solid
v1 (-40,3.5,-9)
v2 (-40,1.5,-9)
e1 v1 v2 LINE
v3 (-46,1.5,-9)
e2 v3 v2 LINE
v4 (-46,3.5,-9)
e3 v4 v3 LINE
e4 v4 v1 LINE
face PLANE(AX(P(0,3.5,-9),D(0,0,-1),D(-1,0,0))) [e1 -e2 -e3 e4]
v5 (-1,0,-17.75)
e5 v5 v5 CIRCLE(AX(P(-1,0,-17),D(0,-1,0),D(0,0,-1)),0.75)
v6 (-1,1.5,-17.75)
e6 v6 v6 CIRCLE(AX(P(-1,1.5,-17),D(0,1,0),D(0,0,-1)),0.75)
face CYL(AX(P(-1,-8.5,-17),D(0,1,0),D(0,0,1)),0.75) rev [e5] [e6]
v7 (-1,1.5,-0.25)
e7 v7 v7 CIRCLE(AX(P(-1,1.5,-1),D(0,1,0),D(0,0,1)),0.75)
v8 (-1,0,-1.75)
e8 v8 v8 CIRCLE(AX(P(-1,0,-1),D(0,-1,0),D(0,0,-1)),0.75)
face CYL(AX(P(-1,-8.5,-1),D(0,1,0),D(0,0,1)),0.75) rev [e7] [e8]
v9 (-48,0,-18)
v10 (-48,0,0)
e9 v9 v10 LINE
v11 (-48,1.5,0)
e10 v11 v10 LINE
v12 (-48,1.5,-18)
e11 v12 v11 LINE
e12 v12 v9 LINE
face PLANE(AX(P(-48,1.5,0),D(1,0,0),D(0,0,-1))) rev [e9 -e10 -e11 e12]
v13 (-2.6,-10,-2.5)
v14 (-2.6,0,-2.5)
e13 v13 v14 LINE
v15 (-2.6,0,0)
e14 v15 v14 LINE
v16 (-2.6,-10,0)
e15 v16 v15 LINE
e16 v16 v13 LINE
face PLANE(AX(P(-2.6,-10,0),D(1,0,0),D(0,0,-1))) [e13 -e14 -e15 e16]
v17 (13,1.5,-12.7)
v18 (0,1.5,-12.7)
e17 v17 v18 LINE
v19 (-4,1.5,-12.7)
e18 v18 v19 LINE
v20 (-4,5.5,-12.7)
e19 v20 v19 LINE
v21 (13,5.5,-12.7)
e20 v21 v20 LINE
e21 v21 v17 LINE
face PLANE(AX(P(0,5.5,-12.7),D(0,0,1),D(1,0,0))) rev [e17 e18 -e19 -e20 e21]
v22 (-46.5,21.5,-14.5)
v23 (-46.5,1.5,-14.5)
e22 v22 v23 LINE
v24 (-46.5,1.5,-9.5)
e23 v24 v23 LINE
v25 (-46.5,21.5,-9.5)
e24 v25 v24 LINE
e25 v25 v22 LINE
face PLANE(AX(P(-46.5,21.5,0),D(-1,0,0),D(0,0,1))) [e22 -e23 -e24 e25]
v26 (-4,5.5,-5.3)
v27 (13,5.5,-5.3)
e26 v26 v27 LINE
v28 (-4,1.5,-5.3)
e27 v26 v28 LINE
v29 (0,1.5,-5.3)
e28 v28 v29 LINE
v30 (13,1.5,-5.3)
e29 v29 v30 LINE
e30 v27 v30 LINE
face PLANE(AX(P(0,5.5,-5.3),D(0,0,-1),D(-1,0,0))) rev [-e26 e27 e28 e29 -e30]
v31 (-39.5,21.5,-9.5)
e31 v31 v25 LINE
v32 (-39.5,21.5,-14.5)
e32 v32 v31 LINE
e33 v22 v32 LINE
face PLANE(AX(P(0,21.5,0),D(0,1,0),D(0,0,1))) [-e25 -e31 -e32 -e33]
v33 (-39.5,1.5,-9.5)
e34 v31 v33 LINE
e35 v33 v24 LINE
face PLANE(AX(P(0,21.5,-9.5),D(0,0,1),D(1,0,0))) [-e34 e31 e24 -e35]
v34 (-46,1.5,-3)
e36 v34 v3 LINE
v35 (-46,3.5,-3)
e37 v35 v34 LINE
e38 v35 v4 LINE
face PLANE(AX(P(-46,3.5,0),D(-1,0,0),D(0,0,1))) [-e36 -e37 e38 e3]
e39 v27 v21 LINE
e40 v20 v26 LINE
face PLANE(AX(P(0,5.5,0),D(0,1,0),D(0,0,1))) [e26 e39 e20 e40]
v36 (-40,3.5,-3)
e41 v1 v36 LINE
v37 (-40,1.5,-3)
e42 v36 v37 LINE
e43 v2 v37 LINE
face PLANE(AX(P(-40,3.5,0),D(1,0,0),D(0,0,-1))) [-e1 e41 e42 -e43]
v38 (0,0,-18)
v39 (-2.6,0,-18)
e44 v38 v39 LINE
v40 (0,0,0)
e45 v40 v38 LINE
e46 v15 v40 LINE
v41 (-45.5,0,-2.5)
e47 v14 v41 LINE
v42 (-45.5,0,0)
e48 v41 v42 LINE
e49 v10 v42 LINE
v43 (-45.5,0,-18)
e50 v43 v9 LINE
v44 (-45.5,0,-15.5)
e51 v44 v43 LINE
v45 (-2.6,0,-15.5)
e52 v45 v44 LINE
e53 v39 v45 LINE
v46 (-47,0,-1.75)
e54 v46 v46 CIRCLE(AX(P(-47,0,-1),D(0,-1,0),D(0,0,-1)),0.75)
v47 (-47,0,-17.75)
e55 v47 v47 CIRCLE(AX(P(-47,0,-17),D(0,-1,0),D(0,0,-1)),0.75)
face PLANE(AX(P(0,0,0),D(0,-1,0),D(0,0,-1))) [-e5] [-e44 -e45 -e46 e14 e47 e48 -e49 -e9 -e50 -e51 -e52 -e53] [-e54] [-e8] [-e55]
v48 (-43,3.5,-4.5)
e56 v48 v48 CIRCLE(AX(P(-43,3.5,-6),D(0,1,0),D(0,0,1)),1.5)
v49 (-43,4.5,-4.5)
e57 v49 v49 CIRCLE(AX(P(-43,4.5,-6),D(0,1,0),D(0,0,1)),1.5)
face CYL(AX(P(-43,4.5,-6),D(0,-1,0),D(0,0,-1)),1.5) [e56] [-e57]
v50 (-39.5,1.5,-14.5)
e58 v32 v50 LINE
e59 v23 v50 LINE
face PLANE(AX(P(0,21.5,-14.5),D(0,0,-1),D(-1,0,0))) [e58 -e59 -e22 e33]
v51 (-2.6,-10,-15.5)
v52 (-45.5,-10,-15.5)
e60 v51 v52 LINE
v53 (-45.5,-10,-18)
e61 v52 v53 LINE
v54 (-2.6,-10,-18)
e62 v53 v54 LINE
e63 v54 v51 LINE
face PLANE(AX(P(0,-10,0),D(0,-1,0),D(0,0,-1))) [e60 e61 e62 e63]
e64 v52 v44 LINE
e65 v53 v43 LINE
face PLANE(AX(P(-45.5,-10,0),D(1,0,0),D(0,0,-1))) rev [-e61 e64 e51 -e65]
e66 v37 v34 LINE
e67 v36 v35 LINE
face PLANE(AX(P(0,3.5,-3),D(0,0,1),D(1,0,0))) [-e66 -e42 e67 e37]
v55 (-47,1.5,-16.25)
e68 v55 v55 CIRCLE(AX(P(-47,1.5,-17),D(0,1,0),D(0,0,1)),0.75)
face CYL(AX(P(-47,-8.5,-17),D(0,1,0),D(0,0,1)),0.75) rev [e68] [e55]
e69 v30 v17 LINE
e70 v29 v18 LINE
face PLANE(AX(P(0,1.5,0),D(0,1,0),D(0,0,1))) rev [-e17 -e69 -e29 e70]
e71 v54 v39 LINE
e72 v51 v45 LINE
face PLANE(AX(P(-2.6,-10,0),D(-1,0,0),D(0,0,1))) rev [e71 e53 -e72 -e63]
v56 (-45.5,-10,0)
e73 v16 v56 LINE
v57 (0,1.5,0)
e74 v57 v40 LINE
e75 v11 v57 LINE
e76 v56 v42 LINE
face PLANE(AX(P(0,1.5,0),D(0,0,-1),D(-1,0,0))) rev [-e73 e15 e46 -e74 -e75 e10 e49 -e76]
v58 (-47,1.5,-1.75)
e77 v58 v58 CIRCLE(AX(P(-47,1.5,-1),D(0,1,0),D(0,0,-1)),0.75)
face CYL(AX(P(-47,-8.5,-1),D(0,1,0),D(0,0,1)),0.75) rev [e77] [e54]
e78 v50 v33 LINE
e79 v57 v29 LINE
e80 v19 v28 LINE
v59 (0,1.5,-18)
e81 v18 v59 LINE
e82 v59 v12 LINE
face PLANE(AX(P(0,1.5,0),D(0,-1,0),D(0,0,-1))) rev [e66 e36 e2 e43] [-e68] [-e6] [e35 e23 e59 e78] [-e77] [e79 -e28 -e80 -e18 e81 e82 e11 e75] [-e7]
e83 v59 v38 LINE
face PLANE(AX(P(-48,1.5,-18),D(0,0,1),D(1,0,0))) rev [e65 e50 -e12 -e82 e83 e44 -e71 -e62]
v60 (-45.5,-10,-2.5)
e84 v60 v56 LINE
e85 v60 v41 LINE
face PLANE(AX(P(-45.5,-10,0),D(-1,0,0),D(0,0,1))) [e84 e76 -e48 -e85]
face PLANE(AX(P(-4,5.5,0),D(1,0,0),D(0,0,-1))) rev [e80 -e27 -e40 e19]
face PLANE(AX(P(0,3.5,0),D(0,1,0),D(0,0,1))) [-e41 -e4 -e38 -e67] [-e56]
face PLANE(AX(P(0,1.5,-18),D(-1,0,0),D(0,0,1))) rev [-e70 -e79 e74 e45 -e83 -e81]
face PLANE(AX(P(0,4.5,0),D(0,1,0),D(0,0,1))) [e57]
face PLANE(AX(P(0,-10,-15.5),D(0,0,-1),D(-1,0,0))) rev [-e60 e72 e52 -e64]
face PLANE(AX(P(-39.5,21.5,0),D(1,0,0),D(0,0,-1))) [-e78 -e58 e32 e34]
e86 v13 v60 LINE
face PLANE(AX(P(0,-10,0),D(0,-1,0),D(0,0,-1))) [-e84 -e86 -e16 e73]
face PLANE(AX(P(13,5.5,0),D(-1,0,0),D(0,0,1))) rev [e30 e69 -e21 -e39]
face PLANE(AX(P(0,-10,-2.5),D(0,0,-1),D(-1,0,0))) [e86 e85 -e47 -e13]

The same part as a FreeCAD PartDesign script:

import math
import FreeCAD as App
import Part
import Sketcher
Q = App.Units.Quantity

doc = App.newDocument("Part")
params = doc.addObject("Spreadsheet::Sheet", "Params")
for row, (alias, value) in enumerate([
    ("sketch1_width", "48 mm"),
    ("sketch1_height", "18 mm"),
    ("pad1_length", "1.5 mm"),
    ("sketch2_width", "17 mm"),
    ("sketch2_height", "7.4 mm"),
    ("pad2_length", "4 mm"),
    ("sketch3_width", "42.9 mm"),
    ("sketch3_height", "2.5 mm"),
    ("pad3_length", "10 mm"),
    ("sketch4_width", "7 mm"),
    ("sketch4_height", "5 mm"),
    ("pad4_length", "20 mm"),
    ("sketch5_width", "6 mm"),
    ("pad5_length", "2 mm"),
    ("sketch6_radius", "1.5 mm"),
    ("pad6_length", "1 mm"),
    ("sketch7_diameter", "1.5 mm"),
    ("pocket1_length", "10 mm"),
], start=1):
    params.set(f"A{row}", alias)
    params.set(f"B{row}", "=" + value)
    params.setAlias(f"B{row}", alias)

body = doc.addObject("PartDesign::Body", "Body")

sketch1 = doc.addObject("Sketcher::SketchObject", "Sketch")
body.addObject(sketch1)
sketch1.AttachmentSupport = (doc.XZ_Plane, [""])
sketch1.MapMode = "FlatFace"
sketch1.addGeometry([
    Part.LineSegment(App.Vector(-48, -18, 0), App.Vector(-48, 0, 0)),
    Part.LineSegment(App.Vector(-48, 0, 0), App.Vector(0, 0, 0)),
    Part.LineSegment(App.Vector(0, 0, 0), App.Vector(0, -18, 0)),
    Part.LineSegment(App.Vector(0, -18, 0), App.Vector(-48, -18, 0)),
], False)
sketch1.addConstraint([
    Sketcher.Constraint("Coincident", 0, 2, 1, 1),
    Sketcher.Constraint("Coincident", 1, 2, 2, 1),
    Sketcher.Constraint("Coincident", 2, 2, 3, 1),
    Sketcher.Constraint("Coincident", 3, 2, 0, 1),
    Sketcher.Constraint("Vertical", 0),
    Sketcher.Constraint("Horizontal", 1),
    Sketcher.Constraint("Vertical", 2),
    Sketcher.Constraint("Horizontal", 3),
    Sketcher.Constraint("Coincident", 1, 2, -1, 1),
    Sketcher.Constraint("DistanceX", 1, 1, 1, 2, Q("48 mm")),
    Sketcher.Constraint("DistanceY", 0, 1, 0, 2, Q("18 mm")),
])
sketch1.setExpression("Constraints[9]", "Params.sketch1_width")
sketch1.setExpression("Constraints[10]", "Params.sketch1_height")
pad1 = doc.addObject("PartDesign::Pad", "Pad")
body.addObject(pad1)
pad1.Profile = sketch1
pad1.setExpression("Length", "Params.pad1_length")
pad1.Reversed = True

sketch2 = doc.addObject("Sketcher::SketchObject", "Sketch001")
body.addObject(sketch2)
sketch2.AttachmentSupport = (doc.XZ_Plane, [""])
sketch2.MapMode = "FlatFace"
sketch2.AttachmentOffset = App.Placement(App.Vector(0, 0, -1.5), App.Rotation())
sketch2.addGeometry([
    Part.LineSegment(App.Vector(13, -5, 0), App.Vector(13, -13, 0)),
    Part.LineSegment(App.Vector(13, -13, 0), App.Vector(-4, -13, 0)),
    Part.LineSegment(App.Vector(-4, -13, 0), App.Vector(-4, -5, 0)),
    Part.LineSegment(App.Vector(-4, -5, 0), App.Vector(13, -5, 0)),
], False)
sketch2.addConstraint([
    Sketcher.Constraint("Coincident", 0, 2, 1, 1),
    Sketcher.Constraint("Coincident", 1, 2, 2, 1),
    Sketcher.Constraint("Coincident", 2, 2, 3, 1),
    Sketcher.Constraint("Coincident", 3, 2, 0, 1),
    Sketcher.Constraint("Vertical", 0),
    Sketcher.Constraint("Horizontal", 1),
    Sketcher.Constraint("Vertical", 2),
    Sketcher.Constraint("Horizontal", 3),
    Sketcher.Constraint("DistanceX", 1, 2, 1, 1, Q("17 mm")),
    Sketcher.Constraint("DistanceY", 0, 2, 0, 1, Q("7.4 mm")),
    Sketcher.Constraint("DistanceX", -1, 1, 0, 2, Q("13 mm")),
    Sketcher.Constraint("DistanceY", 0, 2, -1, 1, Q("12.7 mm")),
])
sketch2.setExpression("Constraints[8]", "Params.sketch2_width")
sketch2.setExpression("Constraints[9]", "Params.sketch2_height")
pad2 = doc.addObject("PartDesign::Pad", "Pad001")
body.addObject(pad2)
pad2.Profile = sketch2
pad2.setExpression("Length", "Params.pad2_length")
pad2.Reversed = True

sketch3 = doc.addObject("Sketcher::SketchObject", "Sketch002")
body.addObject(sketch3)
sketch3.AttachmentSupport = (doc.XZ_Plane, [""])
sketch3.MapMode = "FlatFace"
sketch3.addGeometry([
    Part.LineSegment(App.Vector(-2.6, -18, 0), App.Vector(-2.6, -15.5, 0)),
    Part.LineSegment(App.Vector(-2.6, -15.5, 0), App.Vector(-45.5, -15.5, 0)),
    Part.LineSegment(App.Vector(-45.5, -15.5, 0), App.Vector(-45.5, -18, 0)),
    Part.LineSegment(App.Vector(-45.5, -18, 0), App.Vector(-2.6, -18, 0)),
    Part.LineSegment(App.Vector(-2.6, -2.5, 0), App.Vector(-2.6, 0, 0)),
    Part.LineSegment(App.Vector(-2.6, 0, 0), App.Vector(-45.5, 0, 0)),
    Part.LineSegment(App.Vector(-45.5, 0, 0), App.Vector(-45.5, -2.5, 0)),
    Part.LineSegment(App.Vector(-45.5, -2.5, 0), App.Vector(-2.6, -2.5, 0)),
], False)
sketch3.addConstraint([
    Sketcher.Constraint("Coincident", 0, 2, 1, 1),
    Sketcher.Constraint("Coincident", 1, 2, 2, 1),
    Sketcher.Constraint("Coincident", 2, 2, 3, 1),
    Sketcher.Constraint("Coincident", 3, 2, 0, 1),
    Sketcher.Constraint("Coincident", 4, 2, 5, 1),
    Sketcher.Constraint("Coincident", 5, 2, 6, 1),
    Sketcher.Constraint("Coincident", 6, 2, 7, 1),
    Sketcher.Constraint("Coincident", 7, 2, 4, 1),
    Sketcher.Constraint("Vertical", 0),
    Sketcher.Constraint("Horizontal", 1),
    Sketcher.Constraint("Vertical", 2),
    Sketcher.Constraint("Horizontal", 3),
    Sketcher.Constraint("Vertical", 4),
    Sketcher.Constraint("Horizontal", 5),
    Sketcher.Constraint("Vertical", 6),
    Sketcher.Constraint("Horizontal", 7),
    Sketcher.Constraint("PointOnObject", 4, 2, -1),
    Sketcher.Constraint("Vertical", 3, 2, 4, 2),
    Sketcher.Constraint("Vertical", 2, 2, 5, 2),
    Sketcher.Constraint("Equal", 2, 4),
    Sketcher.Constraint("DistanceX", 1, 2, 1, 1, Q("42.9 mm")),
    Sketcher.Constraint("DistanceY", 0, 1, 0, 2, Q("2.5 mm")),
    Sketcher.Constraint("DistanceY", 2, 2, -1, 1, Q("18 mm")),
    Sketcher.Constraint("DistanceX", 0, 2, -1, 1, Q("2.6 mm")),
])
sketch3.setExpression("Constraints[20]", "Params.sketch3_width")
sketch3.setExpression("Constraints[21]", "Params.sketch3_height")
pad3 = doc.addObject("PartDesign::Pad", "Pad002")
body.addObject(pad3)
pad3.Profile = sketch3
pad3.setExpression("Length", "Params.pad3_length")

sketch4 = doc.addObject("Sketcher::SketchObject", "Sketch003")
body.addObject(sketch4)
sketch4.AttachmentSupport = (doc.XZ_Plane, [""])
sketch4.MapMode = "FlatFace"
sketch4.AttachmentOffset = App.Placement(App.Vector(0, 0, -1.5), App.Rotation())
sketch4.addGeometry([
    Part.LineSegment(App.Vector(-46, -14, 0), App.Vector(-46, -10, 0)),
    Part.LineSegment(App.Vector(-46, -10, 0), App.Vector(-40, -10, 0)),
    Part.LineSegment(App.Vector(-40, -10, 0), App.Vector(-40, -14, 0)),
    Part.LineSegment(App.Vector(-40, -14, 0), App.Vector(-46, -14, 0)),
], False)
sketch4.addConstraint([
    Sketcher.Constraint("Coincident", 0, 2, 1, 1),
    Sketcher.Constraint("Coincident", 1, 2, 2, 1),
    Sketcher.Constraint("Coincident", 2, 2, 3, 1),
    Sketcher.Constraint("Coincident", 3, 2, 0, 1),
    Sketcher.Constraint("Vertical", 0),
    Sketcher.Constraint("Horizontal", 1),
    Sketcher.Constraint("Vertical", 2),
    Sketcher.Constraint("Horizontal", 3),
    Sketcher.Constraint("DistanceX", 1, 1, 1, 2, Q("7 mm")),
    Sketcher.Constraint("DistanceY", 0, 1, 0, 2, Q("5 mm")),
    Sketcher.Constraint("DistanceX", 0, 2, -1, 1, Q("46.5 mm")),
    Sketcher.Constraint("DistanceY", 0, 2, -1, 1, Q("9.5 mm")),
])
sketch4.setExpression("Constraints[8]", "Params.sketch4_width")
sketch4.setExpression("Constraints[9]", "Params.sketch4_height")
pad4 = doc.addObject("PartDesign::Pad", "Pad003")
body.addObject(pad4)
pad4.Profile = sketch4
pad4.setExpression("Length", "Params.pad4_length")
pad4.Reversed = True

sketch5 = doc.addObject("Sketcher::SketchObject", "Sketch004")
body.addObject(sketch5)
sketch5.AttachmentSupport = (doc.XZ_Plane, [""])
sketch5.MapMode = "FlatFace"
sketch5.AttachmentOffset = App.Placement(App.Vector(0, 0, -1.5), App.Rotation())
sketch5.addGeometry([
    Part.LineSegment(App.Vector(-46, -9, 0), App.Vector(-46, -3, 0)),
    Part.LineSegment(App.Vector(-46, -3, 0), App.Vector(-40, -3, 0)),
    Part.LineSegment(App.Vector(-40, -3, 0), App.Vector(-40, -9, 0)),
    Part.LineSegment(App.Vector(-40, -9, 0), App.Vector(-46, -9, 0)),
], False)
sketch5.addConstraint([
    Sketcher.Constraint("Coincident", 0, 2, 1, 1),
    Sketcher.Constraint("Coincident", 1, 2, 2, 1),
    Sketcher.Constraint("Coincident", 2, 2, 3, 1),
    Sketcher.Constraint("Coincident", 3, 2, 0, 1),
    Sketcher.Constraint("Vertical", 0),
    Sketcher.Constraint("Horizontal", 1),
    Sketcher.Constraint("Vertical", 2),
    Sketcher.Constraint("Horizontal", 3),
    Sketcher.Constraint("Equal", 3, 0),
    Sketcher.Constraint("DistanceX", 1, 1, 1, 2, Q("6 mm")),
    Sketcher.Constraint("DistanceX", 0, 2, -1, 1, Q("46 mm")),
    Sketcher.Constraint("DistanceY", 0, 2, -1, 1, Q("3 mm")),
])
sketch5.setExpression("Constraints[9]", "Params.sketch5_width")
pad5 = doc.addObject("PartDesign::Pad", "Pad004")
body.addObject(pad5)
pad5.Profile = sketch5
pad5.setExpression("Length", "Params.pad5_length")
pad5.Reversed = True

sketch6 = doc.addObject("Sketcher::SketchObject", "Sketch005")
body.addObject(sketch6)
sketch6.AttachmentSupport = (doc.XZ_Plane, [""])
sketch6.MapMode = "FlatFace"
sketch6.AttachmentOffset = App.Placement(App.Vector(0, 0, -3.5), App.Rotation())
sketch6.addGeometry([
    Part.ArcOfCircle(Part.Circle(App.Vector(-43, -6, 0), App.Vector(0, 0, 1), 1.5), math.radians(-135), math.radians(-45)),
    Part.ArcOfCircle(Part.Circle(App.Vector(-43, -6, 0), App.Vector(0, 0, 1), 1.5), math.radians(135), math.radians(225)),
    Part.ArcOfCircle(Part.Circle(App.Vector(-43, -6, 0), App.Vector(0, 0, 1), 1.5), math.radians(45), math.radians(135)),
    Part.ArcOfCircle(Part.Circle(App.Vector(-43, -6, 0), App.Vector(0, 0, 1), 1.5), math.radians(0), math.radians(45)),
    Part.ArcOfCircle(Part.Circle(App.Vector(-43, -6, 0), App.Vector(0, 0, 1), 1.5), math.radians(-45), math.radians(0)),
], False)
sketch6.addConstraint([
    Sketcher.Constraint("Tangent", 0, 1, 1, 2),
    Sketcher.Constraint("Tangent", 1, 1, 2, 2),
    Sketcher.Constraint("Tangent", 2, 1, 3, 2),
    Sketcher.Constraint("Tangent", 3, 1, 4, 2),
    Sketcher.Constraint("Tangent", 4, 1, 0, 2),
    Sketcher.Constraint("Coincident", 2, 3, 0, 3),
    Sketcher.Constraint("Horizontal", 1, 1, 2, 1),
    Sketcher.Constraint("Horizontal", 4, 3, 3, 1),
    Sketcher.Constraint("Horizontal", 0, 1, 4, 1),
    Sketcher.Constraint("Vertical", 0, 1, 1, 1),
    Sketcher.Constraint("Radius", 0, Q("1.5 mm")),
    Sketcher.Constraint("DistanceX", 0, 3, -1, 1, Q("43 mm")),
    Sketcher.Constraint("DistanceY", 0, 3, -1, 1, Q("6 mm")),
    Sketcher.Constraint("DistanceX", 0, 1, -1, 1, Q("44.06066 mm")),
])
sketch6.setExpression("Constraints[10]", "Params.sketch6_radius")
pad6 = doc.addObject("PartDesign::Pad", "Pad005")
body.addObject(pad6)
pad6.Profile = sketch6
pad6.setExpression("Length", "Params.pad6_length")
pad6.Reversed = True

sketch7 = doc.addObject("Sketcher::SketchObject", "Sketch006")
body.addObject(sketch7)
sketch7.AttachmentSupport = (doc.XZ_Plane, [""])
sketch7.MapMode = "FlatFace"
sketch7.AttachmentOffset = App.Placement(App.Vector(0, 0, -1.5), App.Rotation())
sketch7.addGeometry([
    Part.Circle(App.Vector(-47, -17, 0), App.Vector(0, 0, 1), 0.8),
    Part.Circle(App.Vector(-47, -1, 0), App.Vector(0, 0, 1), 0.8),
    Part.Circle(App.Vector(-1, -1, 0), App.Vector(0, 0, 1), 0.8),
    Part.Circle(App.Vector(-1, -17, 0), App.Vector(0, 0, 1), 0.8),
], False)
sketch7.addConstraint([
    Sketcher.Constraint("Equal", 0, 1),
    Sketcher.Constraint("Equal", 1, 2),
    Sketcher.Constraint("Equal", 2, 3),
    Sketcher.Constraint("Horizontal", 1, 3, 2, 3),
    Sketcher.Constraint("Horizontal", 0, 3, 3, 3),
    Sketcher.Constraint("Vertical", 0, 3, 1, 3),
    Sketcher.Constraint("Vertical", 2, 3, 3, 3),
    Sketcher.Constraint("Diameter", 0, Q("1.5 mm")),
    Sketcher.Constraint("DistanceX", 0, 3, -1, 1, Q("47 mm")),
    Sketcher.Constraint("DistanceY", 0, 3, -1, 1, Q("17 mm")),
    Sketcher.Constraint("DistanceY", 1, 3, -1, 1, Q("1 mm")),
    Sketcher.Constraint("DistanceX", 2, 3, -1, 1, Q("1 mm")),
])
sketch7.setExpression("Constraints[7]", "Params.sketch7_diameter")
pocket1 = doc.addObject("PartDesign::Pocket", "Pocket")
body.addObject(pocket1)
pocket1.Profile = sketch7
pocket1.setExpression("Length", "Params.pocket1_length")
pocket1.Reversed = True

doc.recompute()
